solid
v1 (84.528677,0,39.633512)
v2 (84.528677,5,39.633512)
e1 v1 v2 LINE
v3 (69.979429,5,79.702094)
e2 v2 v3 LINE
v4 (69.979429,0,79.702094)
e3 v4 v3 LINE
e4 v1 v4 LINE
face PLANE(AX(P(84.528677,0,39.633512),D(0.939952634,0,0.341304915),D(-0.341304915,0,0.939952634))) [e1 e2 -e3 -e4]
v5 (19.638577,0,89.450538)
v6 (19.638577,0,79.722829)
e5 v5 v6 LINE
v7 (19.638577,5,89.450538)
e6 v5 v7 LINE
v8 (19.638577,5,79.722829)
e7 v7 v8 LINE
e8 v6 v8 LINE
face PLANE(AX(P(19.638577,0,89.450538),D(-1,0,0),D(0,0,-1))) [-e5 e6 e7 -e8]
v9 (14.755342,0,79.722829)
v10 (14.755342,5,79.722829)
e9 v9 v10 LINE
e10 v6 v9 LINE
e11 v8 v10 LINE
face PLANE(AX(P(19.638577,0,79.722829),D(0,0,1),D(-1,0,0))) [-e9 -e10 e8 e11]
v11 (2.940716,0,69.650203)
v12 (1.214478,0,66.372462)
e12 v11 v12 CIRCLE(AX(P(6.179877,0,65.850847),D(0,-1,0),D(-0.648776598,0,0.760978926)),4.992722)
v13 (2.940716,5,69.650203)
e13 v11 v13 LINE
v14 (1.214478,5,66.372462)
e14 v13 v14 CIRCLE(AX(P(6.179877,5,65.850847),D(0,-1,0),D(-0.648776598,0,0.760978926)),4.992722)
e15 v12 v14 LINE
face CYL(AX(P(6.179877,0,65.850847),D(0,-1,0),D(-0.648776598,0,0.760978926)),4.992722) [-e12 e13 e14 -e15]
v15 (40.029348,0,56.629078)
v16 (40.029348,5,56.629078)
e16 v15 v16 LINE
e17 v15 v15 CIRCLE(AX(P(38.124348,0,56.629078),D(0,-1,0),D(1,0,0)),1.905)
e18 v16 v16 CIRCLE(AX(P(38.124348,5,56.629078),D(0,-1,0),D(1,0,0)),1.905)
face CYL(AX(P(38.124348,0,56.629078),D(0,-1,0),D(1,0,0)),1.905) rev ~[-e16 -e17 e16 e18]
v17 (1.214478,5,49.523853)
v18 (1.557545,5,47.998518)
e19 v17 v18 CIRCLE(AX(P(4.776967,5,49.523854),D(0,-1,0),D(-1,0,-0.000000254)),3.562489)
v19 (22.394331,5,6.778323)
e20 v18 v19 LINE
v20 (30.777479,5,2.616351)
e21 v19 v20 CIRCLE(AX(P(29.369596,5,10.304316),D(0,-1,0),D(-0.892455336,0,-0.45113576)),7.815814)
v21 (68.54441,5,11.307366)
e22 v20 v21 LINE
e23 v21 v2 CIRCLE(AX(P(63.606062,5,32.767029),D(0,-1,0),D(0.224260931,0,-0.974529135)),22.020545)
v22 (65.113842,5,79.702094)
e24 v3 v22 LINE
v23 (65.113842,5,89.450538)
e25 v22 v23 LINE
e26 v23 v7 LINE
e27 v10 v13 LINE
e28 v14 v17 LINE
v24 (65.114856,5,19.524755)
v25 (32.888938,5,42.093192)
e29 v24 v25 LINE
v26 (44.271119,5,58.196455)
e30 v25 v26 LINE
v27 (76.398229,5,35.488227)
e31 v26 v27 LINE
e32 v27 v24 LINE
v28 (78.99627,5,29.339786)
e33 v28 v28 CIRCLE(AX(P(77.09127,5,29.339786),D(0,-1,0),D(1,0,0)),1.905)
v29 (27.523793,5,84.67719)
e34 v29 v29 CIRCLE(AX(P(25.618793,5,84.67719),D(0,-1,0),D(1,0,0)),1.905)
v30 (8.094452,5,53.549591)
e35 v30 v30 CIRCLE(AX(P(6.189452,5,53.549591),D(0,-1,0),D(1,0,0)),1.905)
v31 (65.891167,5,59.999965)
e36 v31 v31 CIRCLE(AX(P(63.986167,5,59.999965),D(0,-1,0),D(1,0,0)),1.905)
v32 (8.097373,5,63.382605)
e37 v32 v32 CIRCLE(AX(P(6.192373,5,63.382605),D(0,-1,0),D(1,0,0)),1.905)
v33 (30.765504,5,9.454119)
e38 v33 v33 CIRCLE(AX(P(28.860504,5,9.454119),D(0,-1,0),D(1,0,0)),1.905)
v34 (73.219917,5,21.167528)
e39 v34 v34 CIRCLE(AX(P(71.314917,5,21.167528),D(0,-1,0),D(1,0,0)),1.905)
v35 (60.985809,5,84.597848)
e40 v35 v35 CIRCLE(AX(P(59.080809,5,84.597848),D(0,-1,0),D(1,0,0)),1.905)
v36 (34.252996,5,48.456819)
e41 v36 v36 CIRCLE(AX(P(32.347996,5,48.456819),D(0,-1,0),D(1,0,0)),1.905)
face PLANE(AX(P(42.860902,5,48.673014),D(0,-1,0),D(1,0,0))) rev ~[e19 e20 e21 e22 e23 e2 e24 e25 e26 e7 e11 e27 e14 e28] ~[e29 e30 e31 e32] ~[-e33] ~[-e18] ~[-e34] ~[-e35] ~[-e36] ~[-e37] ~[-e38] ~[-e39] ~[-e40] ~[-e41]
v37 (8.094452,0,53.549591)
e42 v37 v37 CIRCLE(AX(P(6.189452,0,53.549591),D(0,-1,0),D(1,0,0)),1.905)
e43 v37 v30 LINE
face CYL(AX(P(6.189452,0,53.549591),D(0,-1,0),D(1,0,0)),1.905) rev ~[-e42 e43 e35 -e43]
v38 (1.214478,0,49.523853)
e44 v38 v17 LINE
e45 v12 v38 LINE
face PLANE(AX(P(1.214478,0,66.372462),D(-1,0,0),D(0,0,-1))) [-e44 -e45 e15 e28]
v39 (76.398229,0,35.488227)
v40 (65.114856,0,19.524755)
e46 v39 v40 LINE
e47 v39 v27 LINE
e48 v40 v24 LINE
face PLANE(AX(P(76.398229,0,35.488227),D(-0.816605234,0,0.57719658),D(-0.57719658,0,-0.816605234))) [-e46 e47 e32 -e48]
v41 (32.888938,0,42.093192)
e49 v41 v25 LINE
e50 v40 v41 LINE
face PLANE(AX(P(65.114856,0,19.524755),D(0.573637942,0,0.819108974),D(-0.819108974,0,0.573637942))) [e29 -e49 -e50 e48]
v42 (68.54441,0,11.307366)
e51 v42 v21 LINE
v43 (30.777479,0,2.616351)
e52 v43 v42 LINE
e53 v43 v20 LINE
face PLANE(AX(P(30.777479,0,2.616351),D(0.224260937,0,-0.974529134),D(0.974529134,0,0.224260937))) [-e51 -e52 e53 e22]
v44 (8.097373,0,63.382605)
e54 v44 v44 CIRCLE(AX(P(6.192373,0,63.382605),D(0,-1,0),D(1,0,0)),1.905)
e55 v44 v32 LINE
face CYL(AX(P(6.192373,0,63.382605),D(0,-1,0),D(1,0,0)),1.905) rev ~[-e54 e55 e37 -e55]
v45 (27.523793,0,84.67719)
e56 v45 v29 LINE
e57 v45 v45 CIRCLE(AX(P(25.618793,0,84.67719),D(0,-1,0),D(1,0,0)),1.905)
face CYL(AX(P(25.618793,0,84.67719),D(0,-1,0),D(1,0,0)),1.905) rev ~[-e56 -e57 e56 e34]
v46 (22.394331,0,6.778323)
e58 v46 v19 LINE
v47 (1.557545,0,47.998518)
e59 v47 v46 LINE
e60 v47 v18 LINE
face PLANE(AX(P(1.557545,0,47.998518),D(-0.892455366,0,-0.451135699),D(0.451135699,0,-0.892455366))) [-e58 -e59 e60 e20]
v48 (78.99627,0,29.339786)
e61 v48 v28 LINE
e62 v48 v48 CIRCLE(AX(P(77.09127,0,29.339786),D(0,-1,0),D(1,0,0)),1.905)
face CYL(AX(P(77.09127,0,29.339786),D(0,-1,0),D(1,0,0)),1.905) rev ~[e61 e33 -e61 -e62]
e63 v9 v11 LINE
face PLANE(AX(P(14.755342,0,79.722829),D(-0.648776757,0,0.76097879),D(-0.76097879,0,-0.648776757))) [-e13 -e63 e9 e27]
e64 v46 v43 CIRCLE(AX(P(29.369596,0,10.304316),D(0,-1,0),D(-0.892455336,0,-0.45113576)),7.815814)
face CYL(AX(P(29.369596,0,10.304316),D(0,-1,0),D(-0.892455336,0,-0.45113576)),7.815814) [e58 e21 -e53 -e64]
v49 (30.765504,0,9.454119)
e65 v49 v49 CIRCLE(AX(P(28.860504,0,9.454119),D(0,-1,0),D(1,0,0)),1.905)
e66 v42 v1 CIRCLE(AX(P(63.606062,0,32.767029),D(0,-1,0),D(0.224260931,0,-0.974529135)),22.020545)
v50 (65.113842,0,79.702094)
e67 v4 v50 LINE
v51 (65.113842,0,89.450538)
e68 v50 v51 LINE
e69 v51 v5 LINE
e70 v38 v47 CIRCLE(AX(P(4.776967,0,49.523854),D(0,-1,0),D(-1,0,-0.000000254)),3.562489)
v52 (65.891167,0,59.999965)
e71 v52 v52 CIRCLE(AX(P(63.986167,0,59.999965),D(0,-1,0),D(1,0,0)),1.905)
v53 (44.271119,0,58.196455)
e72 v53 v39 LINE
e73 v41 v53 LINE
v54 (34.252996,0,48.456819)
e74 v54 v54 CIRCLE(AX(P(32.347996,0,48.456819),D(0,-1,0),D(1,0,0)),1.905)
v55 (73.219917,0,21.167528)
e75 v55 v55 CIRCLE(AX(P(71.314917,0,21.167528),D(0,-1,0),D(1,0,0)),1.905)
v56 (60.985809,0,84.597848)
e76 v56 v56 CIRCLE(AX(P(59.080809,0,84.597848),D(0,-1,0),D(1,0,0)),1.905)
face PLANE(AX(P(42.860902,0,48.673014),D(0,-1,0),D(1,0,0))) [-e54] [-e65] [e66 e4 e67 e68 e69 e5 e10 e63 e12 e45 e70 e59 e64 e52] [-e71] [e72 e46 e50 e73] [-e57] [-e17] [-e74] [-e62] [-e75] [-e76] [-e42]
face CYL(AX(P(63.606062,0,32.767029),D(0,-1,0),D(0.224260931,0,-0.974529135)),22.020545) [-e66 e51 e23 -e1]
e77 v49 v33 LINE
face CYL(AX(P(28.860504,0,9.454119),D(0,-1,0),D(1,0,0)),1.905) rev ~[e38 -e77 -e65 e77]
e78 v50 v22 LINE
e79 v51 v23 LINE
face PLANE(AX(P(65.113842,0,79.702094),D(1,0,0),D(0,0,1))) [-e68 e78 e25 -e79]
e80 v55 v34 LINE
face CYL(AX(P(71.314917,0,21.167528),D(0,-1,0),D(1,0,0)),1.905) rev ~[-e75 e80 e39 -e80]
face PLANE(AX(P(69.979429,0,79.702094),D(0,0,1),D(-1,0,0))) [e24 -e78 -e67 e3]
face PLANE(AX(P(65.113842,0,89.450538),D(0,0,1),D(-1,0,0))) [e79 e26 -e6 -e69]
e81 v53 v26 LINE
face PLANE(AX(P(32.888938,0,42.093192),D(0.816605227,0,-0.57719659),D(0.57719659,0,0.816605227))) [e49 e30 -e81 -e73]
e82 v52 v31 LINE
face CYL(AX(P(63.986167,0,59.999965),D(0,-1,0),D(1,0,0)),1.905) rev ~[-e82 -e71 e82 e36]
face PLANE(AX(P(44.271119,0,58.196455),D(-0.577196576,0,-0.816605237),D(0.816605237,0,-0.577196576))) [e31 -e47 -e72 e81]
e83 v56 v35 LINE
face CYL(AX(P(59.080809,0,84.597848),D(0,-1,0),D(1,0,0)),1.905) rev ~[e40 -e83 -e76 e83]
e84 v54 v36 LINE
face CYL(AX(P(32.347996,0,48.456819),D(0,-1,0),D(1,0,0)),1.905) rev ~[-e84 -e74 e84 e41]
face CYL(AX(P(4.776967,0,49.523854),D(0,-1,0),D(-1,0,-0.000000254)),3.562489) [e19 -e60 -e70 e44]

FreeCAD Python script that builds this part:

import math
import FreeCAD as App
import Part
import Sketcher
Q = App.Units.Quantity

doc = App.newDocument("Part")
params = doc.addObject("Spreadsheet::Sheet", "Params")
for row, (alias, value) in enumerate([
    ("sketch1_diameter", "3.81 mm"),
    ("pad1_length", "5 mm"),
], start=1):
    params.set(f"A{row}", alias)
    params.set(f"B{row}", "=" + value)
    params.setAlias(f"B{row}", alias)

body = doc.addObject("PartDesign::Body", "Body")

# Sketch on XZ plane
sketch1 = body.newObject("Sketcher::SketchObject", "Sketch")
sketch1.AttachmentSupport = (doc.getObject("XZ_Plane"), [""])
sketch1.MapMode = "FlatFace"
sketch1.addGeometry(Part.LineSegment(App.Vector(65.113842, 89.450538, 0), App.Vector(19.638577, 89.450538, 0)), False)
sketch1.addGeometry(Part.LineSegment(App.Vector(19.638577, 89.450538, 0), App.Vector(19.638577, 79.722829, 0)), False)
sketch1.addGeometry(Part.LineSegment(App.Vector(19.638577, 79.722829, 0), App.Vector(14.755342, 79.722829, 0)), False)
sketch1.addGeometry(Part.LineSegment(App.Vector(14.755342, 79.722829, 0), App.Vector(2.940716, 69.650203, 0)), False)
sketch1.addGeometry(Part.ArcOfCircle(Part.Circle(App.Vector(6.179877, 65.850847, 0), App.Vector(0, 0, 1), 4.992722), math.radians(130.449426), math.radians(174.003077)), False)
sketch1.addGeometry(Part.LineSegment(App.Vector(1.214478, 66.372462, 0), App.Vector(1.214478, 49.523853, 0)), False)
sketch1.addGeometry(Part.ArcOfCircle(Part.Circle(App.Vector(4.776967, 49.523854, 0), App.Vector(0, 0, 1), 3.562489), math.radians(-179.999985), math.radians(-154.648785)), False)
sketch1.addGeometry(Part.LineSegment(App.Vector(1.557545, 47.998518, 0), App.Vector(22.394331, 6.778323, 0)), False)
sketch1.addGeometry(Part.ArcOfCircle(Part.Circle(App.Vector(29.369596, 10.304316, 0), App.Vector(0, 0, 1), 7.815814), math.radians(-153.183424), math.radians(-79.622512)), False)
sketch1.addGeometry(Part.LineSegment(App.Vector(30.777479, 2.616351, 0), App.Vector(68.54441, 11.307366, 0)), False)
sketch1.addGeometry(Part.ArcOfCircle(Part.Circle(App.Vector(63.606062, 32.767029, 0), App.Vector(0, 0, 1), 22.020545), math.radians(-77.040578), math.radians(18.169047)), False)
sketch1.addGeometry(Part.LineSegment(App.Vector(84.528677, 39.633512, 0), App.Vector(69.979429, 79.702094, 0)), False)
sketch1.addGeometry(Part.LineSegment(App.Vector(69.979429, 79.702094, 0), App.Vector(65.113842, 79.702094, 0)), False)
sketch1.addGeometry(Part.LineSegment(App.Vector(65.113842, 79.702094, 0), App.Vector(65.113842, 89.450538, 0)), False)
sketch1.addGeometry(Part.Circle(App.Vector(28.860504, 9.454119, 0), App.Vector(0, 0, 1), 1.905), False)
sketch1.addGeometry(Part.Circle(App.Vector(71.314917, 21.167528, 0), App.Vector(0, 0, 1), 1.905), False)
sketch1.addGeometry(Part.LineSegment(App.Vector(76.398229, 35.488227, 0), App.Vector(65.114856, 19.524755, 0)), False)
sketch1.addGeometry(Part.LineSegment(App.Vector(65.114856, 19.524755, 0), App.Vector(32.888938, 42.093192, 0)), False)
sketch1.addGeometry(Part.LineSegment(App.Vector(32.888938, 42.093192, 0), App.Vector(44.271119, 58.196455, 0)), False)
sketch1.addGeometry(Part.LineSegment(App.Vector(44.271119, 58.196455, 0), App.Vector(76.398229, 35.488227, 0)), False)
sketch1.addGeometry(Part.Circle(App.Vector(77.09127, 29.339786, 0), App.Vector(0, 0, 1), 1.905), False)
sketch1.addGeometry(Part.Circle(App.Vector(6.189452, 53.549591, 0), App.Vector(0, 0, 1), 1.905), False)
sketch1.addGeometry(Part.Circle(App.Vector(6.192373, 63.382605, 0), App.Vector(0, 0, 1), 1.905), False)
sketch1.addGeometry(Part.Circle(App.Vector(32.347996, 48.456819, 0), App.Vector(0, 0, 1), 1.905), False)
sketch1.addGeometry(Part.Circle(App.Vector(38.124348, 56.629078, 0), App.Vector(0, 0, 1), 1.905), False)
sketch1.addGeometry(Part.Circle(App.Vector(25.618793, 84.67719, 0), App.Vector(0, 0, 1), 1.905), False)
sketch1.addGeometry(Part.Circle(App.Vector(63.986167, 59.999965, 0), App.Vector(0, 0, 1), 1.905), False)
sketch1.addGeometry(Part.Circle(App.Vector(59.080809, 84.597848, 0), App.Vector(0, 0, 1), 1.905), False)
sketch1.addConstraint(Sketcher.Constraint("Coincident", 0, 2, 1, 1))
sketch1.addConstraint(Sketcher.Constraint("Coincident", 1, 2, 2, 1))
sketch1.addConstraint(Sketcher.Constraint("Coincident", 2, 2, 3, 1))
sketch1.addConstraint(Sketcher.Constraint("Tangent", 3, 2, 4, 1))
sketch1.addConstraint(Sketcher.Constraint("Coincident", 4, 2, 5, 1))
sketch1.addConstraint(Sketcher.Constraint("Tangent", 5, 2, 6, 1))
sketch1.addConstraint(Sketcher.Constraint("Coincident", 6, 2, 7, 1))
sketch1.addConstraint(Sketcher.Constraint("Tangent", 7, 2, 8, 1))
sketch1.addConstraint(Sketcher.Constraint("Coincident", 8, 2, 9, 1))
sketch1.addConstraint(Sketcher.Constraint("Tangent", 9, 2, 10, 1))
sketch1.addConstraint(Sketcher.Constraint("Coincident", 10, 2, 11, 1))
sketch1.addConstraint(Sketcher.Constraint("Coincident", 11, 2, 12, 1))
sketch1.addConstraint(Sketcher.Constraint("Coincident", 12, 2, 13, 1))
sketch1.addConstraint(Sketcher.Constraint("Coincident", 13, 2, 0, 1))
sketch1.addConstraint(Sketcher.Constraint("Coincident", 16, 2, 17, 1))
sketch1.addConstraint(Sketcher.Constraint("Coincident", 17, 2, 18, 1))
sketch1.addConstraint(Sketcher.Constraint("Coincident", 18, 2, 19, 1))
sketch1.addConstraint(Sketcher.Constraint("Coincident", 19, 2, 16, 1))
sketch1.addConstraint(Sketcher.Constraint("Horizontal", 0))
sketch1.addConstraint(Sketcher.Constraint("Vertical", 1))
sketch1.addConstraint(Sketcher.Constraint("Horizontal", 2))
sketch1.addConstraint(Sketcher.Constraint("Vertical", 5))
sketch1.addConstraint(Sketcher.Constraint("Horizontal", 12))
sketch1.addConstraint(Sketcher.Constraint("Vertical", 13))
sketch1.addConstraint(Sketcher.Constraint("Equal", 14, 15))
sketch1.addConstraint(Sketcher.Constraint("Equal", 15, 20))
sketch1.addConstraint(Sketcher.Constraint("Equal", 20, 21))
sketch1.addConstraint(Sketcher.Constraint("Equal", 21, 22))
sketch1.addConstraint(Sketcher.Constraint("Equal", 22, 23))
sketch1.addConstraint(Sketcher.Constraint("Equal", 23, 24))
sketch1.addConstraint(Sketcher.Constraint("Equal", 24, 25))
sketch1.addConstraint(Sketcher.Constraint("Equal", 25, 26))
sketch1.addConstraint(Sketcher.Constraint("Equal", 26, 27))
sketch1.addConstraint(Sketcher.Constraint("Parallel", 16, 18))
sketch1.addConstraint(Sketcher.Constraint("Perpendicular", 18, 19))
sketch1.addConstraint(Sketcher.Constraint("Diameter", 14, Q("3.81 mm")))
sketch1.addConstraint(Sketcher.Constraint("Radius", 4, Q("4.992722 mm")))
sketch1.addConstraint(Sketcher.Constraint("Radius", 6, Q("3.562489 mm")))
sketch1.addConstraint(Sketcher.Constraint("Radius", 8, Q("7.815814 mm")))
sketch1.addConstraint(Sketcher.Constraint("Radius", 10, Q("22.020545 mm")))
sketch1.addConstraint(Sketcher.Constraint("Distance", 11, Q("42.628299 mm")))
sketch1.addConstraint(Sketcher.Constraint("DistanceY", 1, 2, 1, 1, Q("9.727709 mm")))
sketch1.addConstraint(Sketcher.Constraint("DistanceY", 5, 2, 5, 1, Q("16.848609 mm")))
sketch1.addConstraint(Sketcher.Constraint("DistanceY", 15, 3, 10, 3, Q("11.599501 mm")))
sketch1.addConstraint(Sketcher.Constraint("DistanceY", 21, 3, 25, 3, Q("31.127599 mm")))
sketch1.addConstraint(Sketcher.Constraint("DistanceX", 4, 3, 0, 2, Q("13.4587 mm")))
sketch1.addConstraint(Sketcher.Constraint("DistanceY", 22, 3, 3, 2, Q("6.267598 mm")))
sketch1.addConstraint(Sketcher.Constraint("DistanceX", 4, 2, 4, 3, Q("4.965399 mm")))
sketch1.addConstraint(Sketcher.Constraint("DistanceY", 17, 2, 21, 3, Q("11.456399 mm")))
sketch1.addConstraint(Sketcher.Constraint("DistanceY", 10, 3, 19, 2, Q("2.721198 mm")))
sketch1.addConstraint(Sketcher.Constraint("Distance", 9, Q("38.75403 mm")))
sketch1.addConstraint(Sketcher.Constraint("Distance", 16, Q("19.548579 mm")))
sketch1.addConstraint(Sketcher.Constraint("Distance", 17, Q("39.34265 mm")))
sketch1.addConstraint(Sketcher.Constraint("DistanceX", 0, 2, 0, 1, Q("45.475265 mm")))
sketch1.addConstraint(Sketcher.Constraint("DistanceX", 2, 2, 2, 1, Q("4.883235 mm")))
sketch1.addConstraint(Sketcher.Constraint("DistanceX", 12, 2, 12, 1, Q("4.865587 mm")))
sketch1.addConstraint(Sketcher.Constraint("DistanceY", 13, 1, 13, 2, Q("9.748444 mm")))
sketch1.addConstraint(Sketcher.Constraint("DistanceY", -1, 1, 10, 3, Q("32.767029 mm")))
sketch1.addConstraint(Sketcher.Constraint("DistanceY", -1, 1, 14, 3, Q("9.454119 mm")))
sketch1.addConstraint(Sketcher.Constraint("DistanceX", -1, 1, 20, 3, Q("77.09127 mm")))
sketch1.addConstraint(Sketcher.Constraint("DistanceY", -1, 1, 21, 3, Q("53.549591 mm")))
sketch1.addConstraint(Sketcher.Constraint("DistanceY", -1, 1, 23, 3, Q("48.456819 mm")))
sketch1.addConstraint(Sketcher.Constraint("DistanceX", -1, 1, 27, 3, Q("59.080809 mm")))
sketch1.addConstraint(Sketcher.Constraint("DistanceY", -1, 1, 27, 3, Q("84.597848 mm")))
sketch1.addConstraint(Sketcher.Constraint("DistanceY", -1, 1, 1, 2, Q("79.722829 mm")))
sketch1.addConstraint(Sketcher.Constraint("DistanceY", -1, 1, 6, 2, Q("47.998518 mm")))
sketch1.addConstraint(Sketcher.Constraint("DistanceX", -1, 1, 7, 2, Q("22.394331 mm")))
sketch1.addConstraint(Sketcher.Constraint("DistanceX", -1, 1, 8, 2, Q("30.777479 mm")))
sketch1.addConstraint(Sketcher.Constraint("DistanceY", -1, 1, 8, 2, Q("2.616351 mm")))
sketch1.addConstraint(Sketcher.Constraint("DistanceY", -1, 1, 10, 2, Q("39.633512 mm")))
sketch1.addConstraint(Sketcher.Constraint("DistanceX", -1, 1, 17, 2, Q("32.888938 mm")))
sketch1.addConstraint(Sketcher.Constraint("DistanceX", -1, 1, 18, 2, Q("44.271119 mm")))
sketch1.addConstraint(Sketcher.Constraint("DistanceX", 6, 3, 8, 3, Q("24.592629 mm")))
sketch1.addConstraint(Sketcher.Constraint("DistanceX", 14, 3, 8, 3, Q("0.509092 mm")))
sketch1.addConstraint(Sketcher.Constraint("DistanceX", 8, 3, 15, 3, Q("41.945321 mm")))
sketch1.addConstraint(Sketcher.Constraint("DistanceY", 8, 3, 20, 3, Q("19.03547 mm")))
sketch1.addConstraint(Sketcher.Constraint("DistanceX", 21, 3, 14, 3, Q("22.671052 mm")))
sketch1.addConstraint(Sketcher.Constraint("DistanceX", 21, 3, 22, 3, Q("0.002921 mm")))
sketch1.addConstraint(Sketcher.Constraint("DistanceX", 6, 3, 23, 3, Q("27.571029 mm")))
sketch1.addConstraint(Sketcher.Constraint("DistanceX", 23, 3, 24, 3, Q("5.776352 mm")))
sketch1.addConstraint(Sketcher.Constraint("DistanceY", 23, 3, 24, 3, Q("8.172259 mm")))
sketch1.addConstraint(Sketcher.Constraint("DistanceX", 22, 3, 25, 3, Q("19.42642 mm")))
sketch1.addConstraint(Sketcher.Constraint("DistanceX", 24, 3, 26, 3, Q("25.861819 mm")))
sketch1.addConstraint(Sketcher.Constraint("DistanceY", 20, 3, 26, 3, Q("30.660179 mm")))
sketch1.setExpression("Constraints[35]", "Params.sketch1_diameter")
pad1 = body.newObject("PartDesign::Pad", "Pad")
pad1.Profile = sketch1
pad1.setExpression("Length", "Params.pad1_length")
pad1.Reversed = True

doc.recompute()
